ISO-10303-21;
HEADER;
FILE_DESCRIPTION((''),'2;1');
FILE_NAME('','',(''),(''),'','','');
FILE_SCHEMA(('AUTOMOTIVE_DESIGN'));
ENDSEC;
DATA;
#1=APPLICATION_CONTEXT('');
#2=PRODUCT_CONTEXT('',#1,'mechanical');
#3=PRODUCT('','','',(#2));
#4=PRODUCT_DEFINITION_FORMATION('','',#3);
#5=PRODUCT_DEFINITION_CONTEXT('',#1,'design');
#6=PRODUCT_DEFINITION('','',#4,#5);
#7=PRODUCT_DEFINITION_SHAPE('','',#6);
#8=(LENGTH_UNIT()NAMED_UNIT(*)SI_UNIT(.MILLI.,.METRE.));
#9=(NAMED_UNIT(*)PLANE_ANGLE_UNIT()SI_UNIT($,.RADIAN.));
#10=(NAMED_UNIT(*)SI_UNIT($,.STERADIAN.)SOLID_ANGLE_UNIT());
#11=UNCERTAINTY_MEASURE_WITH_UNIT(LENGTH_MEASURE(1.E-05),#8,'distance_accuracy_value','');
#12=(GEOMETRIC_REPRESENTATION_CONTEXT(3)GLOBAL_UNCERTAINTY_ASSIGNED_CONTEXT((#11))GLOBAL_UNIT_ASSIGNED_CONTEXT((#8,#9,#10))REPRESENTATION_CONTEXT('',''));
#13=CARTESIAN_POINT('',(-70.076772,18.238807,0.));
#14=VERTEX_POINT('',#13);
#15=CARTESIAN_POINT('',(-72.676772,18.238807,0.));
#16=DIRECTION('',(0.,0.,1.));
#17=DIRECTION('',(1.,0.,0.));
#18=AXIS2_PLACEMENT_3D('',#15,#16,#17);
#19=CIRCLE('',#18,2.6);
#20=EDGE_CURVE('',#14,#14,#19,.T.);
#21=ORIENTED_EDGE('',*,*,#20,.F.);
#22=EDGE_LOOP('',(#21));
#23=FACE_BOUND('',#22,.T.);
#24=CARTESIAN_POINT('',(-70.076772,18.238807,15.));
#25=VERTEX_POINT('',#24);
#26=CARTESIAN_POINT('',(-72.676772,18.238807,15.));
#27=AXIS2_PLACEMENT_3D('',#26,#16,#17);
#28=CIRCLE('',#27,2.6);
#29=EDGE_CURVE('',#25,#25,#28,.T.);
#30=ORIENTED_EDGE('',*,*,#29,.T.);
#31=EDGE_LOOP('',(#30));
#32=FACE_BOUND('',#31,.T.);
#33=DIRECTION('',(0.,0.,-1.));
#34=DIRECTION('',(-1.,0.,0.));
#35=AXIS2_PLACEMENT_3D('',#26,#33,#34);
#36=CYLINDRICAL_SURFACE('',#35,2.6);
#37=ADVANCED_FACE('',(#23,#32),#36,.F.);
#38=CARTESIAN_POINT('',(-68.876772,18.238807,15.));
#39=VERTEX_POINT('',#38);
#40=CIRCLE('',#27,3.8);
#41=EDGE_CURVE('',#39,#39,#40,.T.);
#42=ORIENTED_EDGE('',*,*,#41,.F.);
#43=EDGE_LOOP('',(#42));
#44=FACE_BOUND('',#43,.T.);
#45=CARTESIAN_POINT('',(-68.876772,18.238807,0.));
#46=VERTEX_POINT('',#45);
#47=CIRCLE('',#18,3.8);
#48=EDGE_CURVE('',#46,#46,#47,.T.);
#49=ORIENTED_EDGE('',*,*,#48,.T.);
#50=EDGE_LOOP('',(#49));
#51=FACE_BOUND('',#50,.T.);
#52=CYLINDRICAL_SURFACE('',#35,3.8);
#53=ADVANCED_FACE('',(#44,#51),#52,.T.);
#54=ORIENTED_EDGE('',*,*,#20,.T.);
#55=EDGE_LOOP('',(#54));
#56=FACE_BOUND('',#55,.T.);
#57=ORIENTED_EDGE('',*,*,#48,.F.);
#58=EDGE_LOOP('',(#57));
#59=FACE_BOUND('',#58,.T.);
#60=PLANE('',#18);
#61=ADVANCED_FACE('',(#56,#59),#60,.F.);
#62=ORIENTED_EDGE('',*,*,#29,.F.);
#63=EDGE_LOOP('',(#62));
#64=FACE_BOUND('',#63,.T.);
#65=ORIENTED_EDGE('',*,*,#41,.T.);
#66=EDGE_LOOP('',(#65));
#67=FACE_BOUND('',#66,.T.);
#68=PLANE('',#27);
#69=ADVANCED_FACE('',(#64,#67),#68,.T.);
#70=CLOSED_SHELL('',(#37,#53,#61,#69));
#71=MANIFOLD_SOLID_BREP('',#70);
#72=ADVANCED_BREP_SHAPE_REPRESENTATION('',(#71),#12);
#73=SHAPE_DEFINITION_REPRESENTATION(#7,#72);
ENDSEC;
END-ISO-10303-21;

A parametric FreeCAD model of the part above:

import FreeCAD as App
import Part
import Sketcher

V = App.Vector
Q = App.Units.Quantity

doc = App.newDocument("Part")
body = doc.addObject("PartDesign::Body", "Body")

sketch1 = body.newObject("Sketcher::SketchObject", "Sketch")
sketch1.AttachmentSupport = (doc.getObject("XY_Plane"), [""])
sketch1.MapMode = "FlatFace"
sketch1.addGeometry(Part.Circle(V(-72.7, 18.2, 0), V(0, 0, 1), 3.8), False)
sketch1.addGeometry(Part.Circle(V(-72.7, 18.2, 0), V(0, 0, 1), 2.6), False)
sketch1.addConstraint(Sketcher.Constraint("Coincident", 1, 3, 0, 3))
sketch1.addConstraint(Sketcher.Constraint("Diameter", 0, Q("7.6 mm")))
sketch1.addConstraint(Sketcher.Constraint("Diameter", 1, Q("5.2 mm")))
sketch1.addConstraint(Sketcher.Constraint("DistanceX", 0, 3, -1, 1, Q("72.676772 mm")))
sketch1.addConstraint(Sketcher.Constraint("DistanceY", -1, 1, 0, 3, Q("18.238807 mm")))
pad1 = body.newObject("PartDesign::Pad", "Pad")
pad1.Profile = sketch1
pad1.Length = 15

doc.recompute()
